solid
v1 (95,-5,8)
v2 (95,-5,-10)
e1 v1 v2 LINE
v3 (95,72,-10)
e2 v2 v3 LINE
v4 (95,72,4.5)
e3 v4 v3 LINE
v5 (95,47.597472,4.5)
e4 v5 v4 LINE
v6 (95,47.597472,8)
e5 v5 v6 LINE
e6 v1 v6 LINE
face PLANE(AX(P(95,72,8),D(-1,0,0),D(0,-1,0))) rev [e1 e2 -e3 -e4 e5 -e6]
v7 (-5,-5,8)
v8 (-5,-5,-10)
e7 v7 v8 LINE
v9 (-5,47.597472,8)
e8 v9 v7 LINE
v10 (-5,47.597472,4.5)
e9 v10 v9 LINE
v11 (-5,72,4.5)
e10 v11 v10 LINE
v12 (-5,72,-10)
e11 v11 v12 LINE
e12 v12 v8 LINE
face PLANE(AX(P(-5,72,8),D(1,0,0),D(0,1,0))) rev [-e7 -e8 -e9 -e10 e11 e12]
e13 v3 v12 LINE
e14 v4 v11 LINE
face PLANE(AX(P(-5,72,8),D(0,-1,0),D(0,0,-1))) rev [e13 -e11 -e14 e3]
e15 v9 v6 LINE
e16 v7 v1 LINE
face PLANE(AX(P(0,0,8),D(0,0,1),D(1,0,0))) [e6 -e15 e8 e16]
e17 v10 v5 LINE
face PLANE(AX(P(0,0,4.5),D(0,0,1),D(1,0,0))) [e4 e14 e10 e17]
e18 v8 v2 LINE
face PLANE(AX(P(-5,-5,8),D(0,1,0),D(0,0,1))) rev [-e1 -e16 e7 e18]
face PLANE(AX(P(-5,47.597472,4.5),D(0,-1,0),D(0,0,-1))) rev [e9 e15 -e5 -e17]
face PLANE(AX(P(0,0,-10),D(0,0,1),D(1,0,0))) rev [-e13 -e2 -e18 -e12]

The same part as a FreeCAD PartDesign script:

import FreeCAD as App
import Part
import Sketcher
from FreeCAD import Vector

doc = App.newDocument("Part")
body = doc.addObject("PartDesign::Body", "Body")

# Sketch on XY plane
sketch1 = body.newObject("Sketcher::SketchObject", "Sketch")
sketch1.AttachmentSupport = (doc.getObject("XY_Plane"), [""])
sketch1.MapMode = "FlatFace"
sketch1.AttachmentOffset = App.Placement(Vector(0, 0, -10), App.Rotation())
sketch1.addGeometry(Part.LineSegment(Vector(-5, 72, 0), Vector(-5, -5, 0)), False)
sketch1.addGeometry(Part.LineSegment(Vector(-5, -5, 0), Vector(95, -5, 0)), False)
sketch1.addGeometry(Part.LineSegment(Vector(95, -5, 0), Vector(95, 72, 0)), False)
sketch1.addGeometry(Part.LineSegment(Vector(95, 72, 0), Vector(-5, 72, 0)), False)
sketch1.addConstraint(Sketcher.Constraint("Coincident", 0, 2, 1, 1))
sketch1.addConstraint(Sketcher.Constraint("Coincident", 1, 2, 2, 1))
sketch1.addConstraint(Sketcher.Constraint("Coincident", 2, 2, 3, 1))
sketch1.addConstraint(Sketcher.Constraint("Coincident", 3, 2, 0, 1))
sketch1.addConstraint(Sketcher.Constraint("Vertical", 0))
sketch1.addConstraint(Sketcher.Constraint("Horizontal", 1))
sketch1.addConstraint(Sketcher.Constraint("Vertical", 2))
sketch1.addConstraint(Sketcher.Constraint("Horizontal", 3))
sketch1.addConstraint(Sketcher.Constraint("DistanceX", 1, 1, 1, 2, 100.0))
sketch1.addConstraint(Sketcher.Constraint("DistanceY", 0, 2, 0, 1, 77.0))
sketch1.addConstraint(Sketcher.Constraint("DistanceX", 0, 2, -1, 1, 5.0))
sketch1.addConstraint(Sketcher.Constraint("DistanceY", 0, 2, -1, 1, 5.0))
pad1 = body.newObject("PartDesign::Pad", "Pad")
pad1.Profile = sketch1
pad1.Length = 18

# Sketch on XY plane
sketch2 = body.newObject("Sketcher::SketchObject", "Sketch001")
sketch2.AttachmentSupport = (doc.getObject("XY_Plane"), [""])
sketch2.MapMode = "FlatFace"
sketch2.AttachmentOffset = App.Placement(Vector(0, 0, 8), App.Rotation())
sketch2.addGeometry(Part.LineSegment(Vector(-5, 72, 0), Vector(-5, 48, 0)), False)
sketch2.addGeometry(Part.LineSegment(Vector(-5, 48, 0), Vector(95, 48, 0)), False)
sketch2.addGeometry(Part.LineSegment(Vector(95, 48, 0), Vector(95, 72, 0)), False)
sketch2.addGeometry(Part.LineSegment(Vector(95, 72, 0), Vector(-5, 72, 0)), False)
sketch2.addConstraint(Sketcher.Constraint("Coincident", 0, 2, 1, 1))
sketch2.addConstraint(Sketcher.Constraint("Coincident", 1, 2, 2, 1))
sketch2.addConstraint(Sketcher.Constraint("Coincident", 2, 2, 3, 1))
sketch2.addConstraint(Sketcher.Constraint("Coincident", 3, 2, 0, 1))
sketch2.addConstraint(Sketcher.Constraint("Vertical", 0))
sketch2.addConstraint(Sketcher.Constraint("Horizontal", 1))
sketch2.addConstraint(Sketcher.Constraint("Vertical", 2))
sketch2.addConstraint(Sketcher.Constraint("Horizontal", 3))
sketch2.addConstraint(Sketcher.Constraint("DistanceX", 1, 1, 1, 2, 100.0))
sketch2.addConstraint(Sketcher.Constraint("DistanceX", 0, 2, -1, 1, 5.0))
sketch2.addConstraint(Sketcher.Constraint("DistanceY", -1, 1, 2, 2, 72.0))
sketch2.addConstraint(Sketcher.Constraint("DistanceY", 0, 2, 0, 1, 24.402528))
pocket1 = body.newObject("PartDesign::Pocket", "Pocket")
pocket1.Profile = sketch2
pocket1.Length = 3.5

doc.recompute()
